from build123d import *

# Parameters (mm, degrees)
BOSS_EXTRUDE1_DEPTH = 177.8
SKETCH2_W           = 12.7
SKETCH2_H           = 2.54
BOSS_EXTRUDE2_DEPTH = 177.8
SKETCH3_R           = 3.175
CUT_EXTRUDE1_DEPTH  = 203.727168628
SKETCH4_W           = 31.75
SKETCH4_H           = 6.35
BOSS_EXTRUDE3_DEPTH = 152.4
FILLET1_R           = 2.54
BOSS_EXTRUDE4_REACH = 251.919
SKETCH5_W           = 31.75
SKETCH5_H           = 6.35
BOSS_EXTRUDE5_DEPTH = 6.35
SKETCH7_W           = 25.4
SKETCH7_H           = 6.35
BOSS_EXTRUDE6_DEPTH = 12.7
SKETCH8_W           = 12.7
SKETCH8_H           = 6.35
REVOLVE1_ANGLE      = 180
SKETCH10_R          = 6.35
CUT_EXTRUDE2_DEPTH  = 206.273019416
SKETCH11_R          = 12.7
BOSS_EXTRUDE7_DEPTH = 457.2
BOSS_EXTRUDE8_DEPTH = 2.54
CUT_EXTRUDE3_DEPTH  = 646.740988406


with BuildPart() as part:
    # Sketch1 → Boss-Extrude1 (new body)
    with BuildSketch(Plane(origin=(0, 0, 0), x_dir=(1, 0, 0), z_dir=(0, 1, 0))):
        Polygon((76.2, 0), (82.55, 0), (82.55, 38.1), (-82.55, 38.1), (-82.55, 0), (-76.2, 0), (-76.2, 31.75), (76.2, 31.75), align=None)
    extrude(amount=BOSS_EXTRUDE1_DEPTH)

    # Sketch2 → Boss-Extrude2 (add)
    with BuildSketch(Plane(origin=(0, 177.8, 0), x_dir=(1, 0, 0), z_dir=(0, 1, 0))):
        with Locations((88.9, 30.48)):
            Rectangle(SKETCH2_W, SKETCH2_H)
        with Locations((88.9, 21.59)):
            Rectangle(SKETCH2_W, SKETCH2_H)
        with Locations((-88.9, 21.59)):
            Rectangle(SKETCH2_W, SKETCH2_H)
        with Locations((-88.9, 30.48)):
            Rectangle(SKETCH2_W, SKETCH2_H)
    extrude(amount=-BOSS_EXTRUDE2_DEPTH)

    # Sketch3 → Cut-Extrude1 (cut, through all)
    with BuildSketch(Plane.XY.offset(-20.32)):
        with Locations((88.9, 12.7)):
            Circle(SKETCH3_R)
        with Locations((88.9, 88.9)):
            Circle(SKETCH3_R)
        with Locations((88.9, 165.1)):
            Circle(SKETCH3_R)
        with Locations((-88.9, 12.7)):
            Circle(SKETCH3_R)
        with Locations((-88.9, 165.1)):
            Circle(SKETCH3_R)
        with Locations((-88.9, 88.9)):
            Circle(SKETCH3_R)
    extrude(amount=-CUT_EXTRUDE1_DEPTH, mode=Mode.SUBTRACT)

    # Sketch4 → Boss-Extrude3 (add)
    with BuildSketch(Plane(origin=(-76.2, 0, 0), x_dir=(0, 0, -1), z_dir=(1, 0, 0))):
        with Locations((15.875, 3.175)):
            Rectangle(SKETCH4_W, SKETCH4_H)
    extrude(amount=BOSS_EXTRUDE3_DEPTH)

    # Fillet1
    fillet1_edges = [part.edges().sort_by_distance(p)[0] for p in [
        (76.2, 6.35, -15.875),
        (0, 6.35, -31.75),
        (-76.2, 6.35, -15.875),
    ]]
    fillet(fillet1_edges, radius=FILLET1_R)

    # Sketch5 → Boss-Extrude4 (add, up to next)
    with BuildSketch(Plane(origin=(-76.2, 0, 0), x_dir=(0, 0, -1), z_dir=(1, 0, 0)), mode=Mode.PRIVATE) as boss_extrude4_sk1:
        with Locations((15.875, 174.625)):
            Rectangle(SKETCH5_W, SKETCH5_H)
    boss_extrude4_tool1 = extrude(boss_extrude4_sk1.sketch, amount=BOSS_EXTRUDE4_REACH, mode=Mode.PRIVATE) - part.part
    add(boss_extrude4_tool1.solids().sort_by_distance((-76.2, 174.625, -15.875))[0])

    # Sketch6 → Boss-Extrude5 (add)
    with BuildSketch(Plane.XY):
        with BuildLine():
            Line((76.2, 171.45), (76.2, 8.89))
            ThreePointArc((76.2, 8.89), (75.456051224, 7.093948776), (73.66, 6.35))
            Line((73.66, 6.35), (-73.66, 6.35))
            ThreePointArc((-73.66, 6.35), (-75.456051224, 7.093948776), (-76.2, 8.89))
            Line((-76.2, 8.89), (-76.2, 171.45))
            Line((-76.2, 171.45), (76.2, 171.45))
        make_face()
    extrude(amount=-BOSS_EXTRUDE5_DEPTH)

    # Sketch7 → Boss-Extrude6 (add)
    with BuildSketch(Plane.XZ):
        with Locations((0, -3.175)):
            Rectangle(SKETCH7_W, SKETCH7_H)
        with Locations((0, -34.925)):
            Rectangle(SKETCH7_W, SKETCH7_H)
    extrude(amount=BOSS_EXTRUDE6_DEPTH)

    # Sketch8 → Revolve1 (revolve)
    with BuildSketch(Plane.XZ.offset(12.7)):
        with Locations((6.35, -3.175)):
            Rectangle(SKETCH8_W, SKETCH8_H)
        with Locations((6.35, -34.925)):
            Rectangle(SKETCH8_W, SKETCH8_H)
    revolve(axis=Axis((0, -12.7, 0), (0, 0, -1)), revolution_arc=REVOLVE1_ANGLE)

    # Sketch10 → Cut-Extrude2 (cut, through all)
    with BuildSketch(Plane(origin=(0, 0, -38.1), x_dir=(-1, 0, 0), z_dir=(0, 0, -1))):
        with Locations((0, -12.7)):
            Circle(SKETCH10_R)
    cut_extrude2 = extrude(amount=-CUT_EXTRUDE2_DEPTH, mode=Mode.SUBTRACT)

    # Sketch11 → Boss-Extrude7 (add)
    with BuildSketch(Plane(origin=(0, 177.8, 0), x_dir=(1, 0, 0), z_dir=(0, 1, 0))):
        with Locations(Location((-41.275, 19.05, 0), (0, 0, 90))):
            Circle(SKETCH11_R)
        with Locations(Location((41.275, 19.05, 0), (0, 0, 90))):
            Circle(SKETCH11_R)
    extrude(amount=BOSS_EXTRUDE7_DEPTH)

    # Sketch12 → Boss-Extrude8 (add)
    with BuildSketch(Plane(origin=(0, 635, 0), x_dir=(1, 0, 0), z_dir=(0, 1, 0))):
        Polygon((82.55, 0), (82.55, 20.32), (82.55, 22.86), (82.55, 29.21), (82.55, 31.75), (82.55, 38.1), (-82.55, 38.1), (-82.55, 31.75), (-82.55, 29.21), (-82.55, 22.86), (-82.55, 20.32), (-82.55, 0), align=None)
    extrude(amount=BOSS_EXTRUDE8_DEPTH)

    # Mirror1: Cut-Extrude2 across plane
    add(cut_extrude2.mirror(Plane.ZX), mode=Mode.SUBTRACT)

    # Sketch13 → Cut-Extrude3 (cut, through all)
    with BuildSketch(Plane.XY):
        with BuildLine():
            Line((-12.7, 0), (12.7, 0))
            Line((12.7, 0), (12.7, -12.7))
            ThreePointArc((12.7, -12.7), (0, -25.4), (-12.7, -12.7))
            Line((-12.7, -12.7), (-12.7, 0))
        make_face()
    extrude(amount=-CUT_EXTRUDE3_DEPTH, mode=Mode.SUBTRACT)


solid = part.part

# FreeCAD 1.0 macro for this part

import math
import FreeCAD as App
import Part
import Sketcher

V = App.Vector
Q = App.Units.Quantity


def edges_at(feature, points):
    """Names of the edges that pass closest to the given points."""
    edges = feature.Shape.Edges
    near = lambda p: min(range(len(edges)), key=lambda i: edges[i].distToShape(Part.Vertex(*p))[0])
    return sorted({f"Edge{near(p) + 1}" for p in points})

doc = App.newDocument("Part")
body = doc.addObject("PartDesign::Body", "Body")

# Sketch on XZ plane
sketch1 = body.newObject("Sketcher::SketchObject", "Sketch")
sketch1.AttachmentSupport = (doc.getObject("XZ_Plane"), [""])
sketch1.MapMode = "FlatFace"
sketch1.addGeometry([
    Part.LineSegment(V(76.2, 0, 0), V(82.55, 0, 0)),  # 0
    Part.LineSegment(V(82.55, 0, 0), V(82.55, -38.1, 0)),  # 1
    Part.LineSegment(V(82.55, -38.1, 0), V(-82.55, -38.1, 0)),  # 2
    Part.LineSegment(V(-82.55, -38.1, 0), V(-82.55, 0, 0)),  # 3
    Part.LineSegment(V(-82.55, 0, 0), V(-76.2, 0, 0)),  # 4
    Part.LineSegment(V(-76.2, 0, 0), V(-76.2, -31.75, 0)),  # 5
    Part.LineSegment(V(-76.2, -31.75, 0), V(76.2, -31.75, 0)),  # 6
    Part.LineSegment(V(76.2, -31.75, 0), V(76.2, 0, 0)),  # 7
], False)
sketch1.addConstraint([
    Sketcher.Constraint("Coincident", 0, 2, 1, 1),
    Sketcher.Constraint("Coincident", 1, 2, 2, 1),
    Sketcher.Constraint("Coincident", 2, 2, 3, 1),
    Sketcher.Constraint("Coincident", 3, 2, 4, 1),
    Sketcher.Constraint("Coincident", 4, 2, 5, 1),
    Sketcher.Constraint("Coincident", 5, 2, 6, 1),
    Sketcher.Constraint("Coincident", 6, 2, 7, 1),
    Sketcher.Constraint("Coincident", 7, 2, 0, 1),
    Sketcher.Constraint("Horizontal", 0),
    Sketcher.Constraint("Vertical", 1),
    Sketcher.Constraint("Horizontal", 2),
    Sketcher.Constraint("Vertical", 3),
    Sketcher.Constraint("Horizontal", 4),
    Sketcher.Constraint("Vertical", 5),
    Sketcher.Constraint("Horizontal", 6),
    Sketcher.Constraint("Vertical", 7),
    Sketcher.Constraint("Symmetric", 0, 2, 3, 2, -1, 1),
    Sketcher.Constraint("Symmetric", 4, 2, 7, 2, -2),
    Sketcher.Constraint("DistanceX", 6, 1, 6, 2, Q("6 in")),
    Sketcher.Constraint("DistanceX", 2, 2, 2, 1, Q("6.5 in")),
    Sketcher.Constraint("DistanceY", 1, 2, 1, 1, Q("1.5 in")),
    Sketcher.Constraint("DistanceY", 5, 2, 5, 1, Q("1.25 in")),
])
pad1 = body.newObject("PartDesign::Pad", "Pad")
pad1.Profile = sketch1
pad1.Length = Q("7 in")
pad1.Reversed = True

# Sketch on XZ plane
sketch2 = body.newObject("Sketcher::SketchObject", "Sketch001")
sketch2.AttachmentSupport = (doc.getObject("XZ_Plane"), [""])
sketch2.MapMode = "FlatFace"
sketch2.AttachmentOffset = App.Placement(V(0, 0, -7 * 25.4), App.Rotation())
sketch2.addGeometry([
    Part.LineSegment(V(82.55, -31.75, 0), V(82.55, -29.21, 0)),  # 0
    Part.LineSegment(V(82.55, -29.21, 0), V(95.25, -29.21, 0)),  # 1
    Part.LineSegment(V(95.25, -29.21, 0), V(95.25, -31.75, 0)),  # 2
    Part.LineSegment(V(95.25, -31.75, 0), V(82.55, -31.75, 0)),  # 3
    Part.LineSegment(V(82.55, -22.86, 0), V(82.55, -20.32, 0)),  # 4
    Part.LineSegment(V(82.55, -20.32, 0), V(95.25, -20.32, 0)),  # 5
    Part.LineSegment(V(95.25, -20.32, 0), V(95.25, -22.86, 0)),  # 6
    Part.LineSegment(V(95.25, -22.86, 0), V(82.55, -22.86, 0)),  # 7
    Part.LineSegment(V(-95.25, -22.86, 0), V(-95.25, -20.32, 0)),  # 8
    Part.LineSegment(V(-95.25, -20.32, 0), V(-82.55, -20.32, 0)),  # 9
    Part.LineSegment(V(-82.55, -20.32, 0), V(-82.55, -22.86, 0)),  # 10
    Part.LineSegment(V(-82.55, -22.86, 0), V(-95.25, -22.86, 0)),  # 11
    Part.LineSegment(V(-95.25, -31.75, 0), V(-95.25, -29.21, 0)),  # 12
    Part.LineSegment(V(-95.25, -29.21, 0), V(-82.55, -29.21, 0)),  # 13
    Part.LineSegment(V(-82.55, -29.21, 0), V(-82.55, -31.75, 0)),  # 14
    Part.LineSegment(V(-82.55, -31.75, 0), V(-95.25, -31.75, 0)),  # 15
], False)
sketch2.addConstraint([
    Sketcher.Constraint("Coincident", 0, 2, 1, 1),
    Sketcher.Constraint("Coincident", 1, 2, 2, 1),
    Sketcher.Constraint("Coincident", 2, 2, 3, 1),
    Sketcher.Constraint("Coincident", 3, 2, 0, 1),
    Sketcher.Constraint("Coincident", 4, 2, 5, 1),
    Sketcher.Constraint("Coincident", 5, 2, 6, 1),
    Sketcher.Constraint("Coincident", 6, 2, 7, 1),
    Sketcher.Constraint("Coincident", 7, 2, 4, 1),
    Sketcher.Constraint("Coincident", 8, 2, 9, 1),
    Sketcher.Constraint("Coincident", 9, 2, 10, 1),
    Sketcher.Constraint("Coincident", 10, 2, 11, 1),
    Sketcher.Constraint("Coincident", 11, 2, 8, 1),
    Sketcher.Constraint("Coincident", 12, 2, 13, 1),
    Sketcher.Constraint("Coincident", 13, 2, 14, 1),
    Sketcher.Constraint("Coincident", 14, 2, 15, 1),
    Sketcher.Constraint("Coincident", 15, 2, 12, 1),
    Sketcher.Constraint("Vertical", 0),
    Sketcher.Constraint("Horizontal", 1),
    Sketcher.Constraint("Vertical", 2),
    Sketcher.Constraint("Horizontal", 3),
    Sketcher.Constraint("Vertical", 4),
    Sketcher.Constraint("Horizontal", 5),
    Sketcher.Constraint("Vertical", 6),
    Sketcher.Constraint("Horizontal", 7),
    Sketcher.Constraint("Vertical", 8),
    Sketcher.Constraint("Horizontal", 9),
    Sketcher.Constraint("Vertical", 10),
    Sketcher.Constraint("Horizontal", 11),
    Sketcher.Constraint("Vertical", 12),
    Sketcher.Constraint("Horizontal", 13),
    Sketcher.Constraint("Vertical", 14),
    Sketcher.Constraint("Horizontal", 15),
    Sketcher.Constraint("Symmetric", 5, 2, 8, 2, -2),
    Sketcher.Constraint("Symmetric", 7, 2, 10, 2, -2),
    Sketcher.Constraint("Symmetric", 1, 2, 12, 2, -2),
    Sketcher.Constraint("Symmetric", 3, 2, 14, 2, -2),
    Sketcher.Constraint("Vertical", 3, 2, 4, 2),
    Sketcher.Constraint("Vertical", 2, 2, 5, 2),
    Sketcher.Constraint("Equal", 2, 4),
    Sketcher.Constraint("DistanceX", 1, 1, 1, 2, Q("0.5 in")),
    Sketcher.Constraint("DistanceY", 0, 1, 0, 2, Q("0.1 in")),
    Sketcher.Constraint("DistanceX", 8, 2, 4, 2, Q("7 in")),
    Sketcher.Constraint("DistanceY", 4, 2, -1, 1, Q("0.8 in")),
    Sketcher.Constraint("DistanceY", 0, 2, -1, 1, Q("1.15 in")),
])
pad2 = body.newObject("PartDesign::Pad", "Pad001")
pad2.Profile = sketch2
pad2.Length = Q("7 in")

# Sketch on XY plane
sketch3 = body.newObject("Sketcher::SketchObject", "Sketch002")
sketch3.AttachmentSupport = (doc.getObject("XY_Plane"), [""])
sketch3.MapMode = "FlatFace"
sketch3.AttachmentOffset = App.Placement(V(0, 0, -0.8 * 25.4), App.Rotation())
sketch3.addGeometry([
    Part.Circle(V(88.9, 12.7, 0), V(0, 0, 1), 3.175),  # 0
    Part.Circle(V(88.9, 88.9, 0), V(0, 0, 1), 3.175),  # 1
    Part.Circle(V(88.9, 165.1, 0), V(0, 0, 1), 3.175),  # 2
    Part.Circle(V(-88.9, 12.7, 0), V(0, 0, 1), 3.175),  # 3
    Part.Circle(V(-88.9, 165.1, 0), V(0, 0, 1), 3.175),  # 4
    Part.Circle(V(-88.9, 88.9, 0), V(0, 0, 1), 3.175),  # 5
], False)
sketch3.addConstraint([
    Sketcher.Constraint("Equal", 0, 1),
    Sketcher.Constraint("Equal", 1, 2),
    Sketcher.Constraint("Equal", 2, 3),
    Sketcher.Constraint("Equal", 3, 4),
    Sketcher.Constraint("Equal", 4, 5),
    Sketcher.Constraint("Symmetric", 0, 3, 3, 3, -2),
    Sketcher.Constraint("Symmetric", 2, 3, 4, 3, -2),
    Sketcher.Constraint("Symmetric", 1, 3, 5, 3, -2),
    Sketcher.Constraint("Vertical", 0, 3, 1, 3),
    Sketcher.Constraint("Vertical", 1, 3, 2, 3),
    Sketcher.Constraint("Diameter", 0, Q("0.25 in")),
    Sketcher.Constraint("DistanceY", 0, 3, 1, 3, Q("3 in")),
    Sketcher.Constraint("DistanceY", 1, 3, 2, 3, Q("3 in")),
    Sketcher.Constraint("DistanceX", 3, 3, 0, 3, Q("7 in")),
    Sketcher.Constraint("DistanceY", -1, 1, 0, 3, Q("0.5 in")),
])
pocket1 = body.newObject("PartDesign::Pocket", "Pocket")
pocket1.Profile = sketch3
pocket1.Type = "ThroughAll"

# Sketch on YZ plane
sketch4 = body.newObject("Sketcher::SketchObject", "Sketch003")
sketch4.AttachmentSupport = (doc.getObject("YZ_Plane"), [""])
sketch4.MapMode = "FlatFace"
sketch4.AttachmentOffset = App.Placement(V(0, 0, -3 * 25.4), App.Rotation())
sketch4.addGeometry([
    Part.LineSegment(V(6.35, 0, 0), V(0, 0, 0)),
    Part.LineSegment(V(0, 0, 0), V(0, -31.75, 0)),
    Part.LineSegment(V(0, -31.75, 0), V(6.35, -31.75, 0)),
    Part.LineSegment(V(6.35, -31.75, 0), V(6.35, 0, 0)),
], False)
sketch4.addConstraint([
    Sketcher.Constraint("Coincident", 0, 2, 1, 1),
    Sketcher.Constraint("Coincident", 1, 2, 2, 1),
    Sketcher.Constraint("Coincident", 2, 2, 3, 1),
    Sketcher.Constraint("Coincident", 3, 2, 0, 1),
    Sketcher.Constraint("Horizontal", 0),
    Sketcher.Constraint("Vertical", 1),
    Sketcher.Constraint("Horizontal", 2),
    Sketcher.Constraint("Vertical", 3),
    Sketcher.Constraint("Coincident", 0, 2, -1, 1),
    Sketcher.Constraint("DistanceX", 0, 2, 0, 1, Q("0.25 in")),
    Sketcher.Constraint("DistanceY", 1, 2, 1, 1, Q("1.25 in")),
])
pad3 = body.newObject("PartDesign::Pad", "Pad002")
pad3.Profile = sketch4
pad3.Length = Q("6 in")
doc.recompute()

fillet = body.newObject("PartDesign::Fillet", "Fillet")
fillet.Base = (pad3, edges_at(pad3, [(76.2, 6.35, -15.875), (0, 6.35, -31.75), (-76.2, 6.35, -15.875)]))
fillet.Radius = Q("0.1 in")

# Sketch on YZ plane
sketch5 = body.newObject("Sketcher::SketchObject", "Sketch004")
sketch5.AttachmentSupport = (doc.getObject("YZ_Plane"), [""])
sketch5.MapMode = "FlatFace"
sketch5.AttachmentOffset = App.Placement(V(0, 0, -3 * 25.4), App.Rotation())
sketch5.addGeometry([
    Part.LineSegment(V(177.8, 0, 0), V(171.45, 0, 0)),
    Part.LineSegment(V(171.45, 0, 0), V(171.45, -31.75, 0)),
    Part.LineSegment(V(171.45, -31.75, 0), V(177.8, -31.75, 0)),
    Part.LineSegment(V(177.8, -31.75, 0), V(177.8, 0, 0)),
], False)
sketch5.addConstraint([
    Sketcher.Constraint("Coincident", 0, 2, 1, 1),
    Sketcher.Constraint("Coincident", 1, 2, 2, 1),
    Sketcher.Constraint("Coincident", 2, 2, 3, 1),
    Sketcher.Constraint("Coincident", 3, 2, 0, 1),
    Sketcher.Constraint("Horizontal", 0),
    Sketcher.Constraint("Vertical", 1),
    Sketcher.Constraint("Horizontal", 2),
    Sketcher.Constraint("Vertical", 3),
    Sketcher.Constraint("PointOnObject", 0, 2, -1),
    Sketcher.Constraint("DistanceX", -1, 1, 2, 2, Q("7 in")),
    Sketcher.Constraint("DistanceX", 0, 2, 0, 1, Q("0.25 in")),
    Sketcher.Constraint("DistanceY", 1, 2, 1, 1, Q("1.25 in")),
])
pad4 = body.newObject("PartDesign::Pad", "Pad003")
pad4.Profile = sketch5
pad4.Type = "UpToFirst"

# Sketch on XY plane
sketch6 = body.newObject("Sketcher::SketchObject", "Sketch005")
sketch6.AttachmentSupport = (doc.getObject("XY_Plane"), [""])
sketch6.MapMode = "FlatFace"
sketch6.addGeometry([
    Part.LineSegment(V(76.2, 8.89, 0), V(76.2, 171.45, 0)),  # 0
    Part.LineSegment(V(76.2, 171.45, 0), V(-76.2, 171.45, 0)),  # 1
    Part.LineSegment(V(-76.2, 171.45, 0), V(-76.2, 8.89, 0)),  # 2
    Part.ArcOfCircle(Part.Circle(V(-73.66, 8.89, 0), V(0, 0, 1), 2.54), math.radians(-180), math.radians(-90)),  # 3
    Part.LineSegment(V(-73.66, 6.35, 0), V(73.66, 6.35, 0)),  # 4
    Part.ArcOfCircle(Part.Circle(V(73.66, 8.89, 0), V(0, 0, 1), 2.54), math.radians(-90), math.radians(0)),  # 5
], False)
sketch6.addConstraint([
    Sketcher.Constraint("Coincident", 0, 2, 1, 1),
    Sketcher.Constraint("Coincident", 1, 2, 2, 1),
    Sketcher.Constraint("Tangent", 2, 2, 3, 1),
    Sketcher.Constraint("Tangent", 3, 2, 4, 1),
    Sketcher.Constraint("Tangent", 4, 2, 5, 1),
    Sketcher.Constraint("Tangent", 5, 2, 0, 1),
    Sketcher.Constraint("Vertical", 0),
    Sketcher.Constraint("Horizontal", 1),
    Sketcher.Constraint("Vertical", 2),
    Sketcher.Constraint("Horizontal", 4),
    Sketcher.Constraint("Equal", 3, 5),
    Sketcher.Constraint("Radius", 3, Q("0.1 in")),
    Sketcher.Constraint("DistanceX", 1, 2, 1, 1, Q("6 in")),
    Sketcher.Constraint("DistanceY", 0, 1, 0, 2, Q("6.4 in")),
    Sketcher.Constraint("DistanceX", -1, 1, 0, 2, Q("3 in")),
    Sketcher.Constraint("DistanceY", -1, 1, 3, 3, Q("0.35 in")),
])
pad5 = body.newObject("PartDesign::Pad", "Pad004")
pad5.Profile = sketch6
pad5.Length = Q("0.25 in")
pad5.Reversed = True

# Sketch on XZ plane
sketch7 = body.newObject("Sketcher::SketchObject", "Sketch006")
sketch7.AttachmentSupport = (doc.getObject("XZ_Plane"), [""])
sketch7.MapMode = "FlatFace"
sketch7.addGeometry([
    Part.LineSegment(V(-12.7, 0, 0), V(-12.7, -6.35, 0)),  # 0
    Part.LineSegment(V(-12.7, -6.35, 0), V(12.7, -6.35, 0)),  # 1
    Part.LineSegment(V(12.7, -6.35, 0), V(12.7, 0, 0)),  # 2
    Part.LineSegment(V(12.7, 0, 0), V(-12.7, 0, 0)),  # 3
    Part.LineSegment(V(-12.7, -31.75, 0), V(-12.7, -38.1, 0)),  # 4
    Part.LineSegment(V(-12.7, -38.1, 0), V(12.7, -38.1, 0)),  # 5
    Part.LineSegment(V(12.7, -38.1, 0), V(12.7, -31.75, 0)),  # 6
    Part.LineSegment(V(12.7, -31.75, 0), V(-12.7, -31.75, 0)),  # 7
], False)
sketch7.addConstraint([
    Sketcher.Constraint("Coincident", 0, 2, 1, 1),
    Sketcher.Constraint("Coincident", 1, 2, 2, 1),
    Sketcher.Constraint("Coincident", 2, 2, 3, 1),
    Sketcher.Constraint("Coincident", 3, 2, 0, 1),
    Sketcher.Constraint("Coincident", 4, 2, 5, 1),
    Sketcher.Constraint("Coincident", 5, 2, 6, 1),
    Sketcher.Constraint("Coincident", 6, 2, 7, 1),
    Sketcher.Constraint("Coincident", 7, 2, 4, 1),
    Sketcher.Constraint("Vertical", 0),
    Sketcher.Constraint("Horizontal", 1),
    Sketcher.Constraint("Vertical", 2),
    Sketcher.Constraint("Horizontal", 3),
    Sketcher.Constraint("Vertical", 4),
    Sketcher.Constraint("Horizontal", 5),
    Sketcher.Constraint("Vertical", 6),
    Sketcher.Constraint("Horizontal", 7),
    Sketcher.Constraint("Symmetric", 2, 2, 3, 2, -1, 1),
    Sketcher.Constraint("Vertical", 3, 2, 4, 2),
    Sketcher.Constraint("Vertical", 2, 2, 5, 2),
    Sketcher.Constraint("Equal", 2, 4),
    Sketcher.Constraint("DistanceX", 1, 1, 1, 2, Q("1 in")),
    Sketcher.Constraint("DistanceY", 6, 2, 1, 2, Q("1 in")),
    Sketcher.Constraint("DistanceY", 0, 2, 0, 1, Q("0.25 in")),
])
pad6 = body.newObject("PartDesign::Pad", "Pad005")
pad6.Profile = sketch7
pad6.Length = Q("0.5 in")

# Sketch on XZ plane
sketch8 = body.newObject("Sketcher::SketchObject", "Sketch007")
sketch8.AttachmentSupport = (doc.getObject("XZ_Plane"), [""])
sketch8.MapMode = "FlatFace"
sketch8.AttachmentOffset = App.Placement(V(0, 0, 0.5 * 25.4), App.Rotation())
sketch8.addGeometry([
    Part.LineSegment(V(0, 0, 0), V(0, -6.35, 0)),  # 0
    Part.LineSegment(V(0, -6.35, 0), V(12.7, -6.35, 0)),  # 1
    Part.LineSegment(V(12.7, -6.35, 0), V(12.7, 0, 0)),  # 2
    Part.LineSegment(V(12.7, 0, 0), V(0, 0, 0)),  # 3
    Part.LineSegment(V(0, -31.75, 0), V(0, -38.1, 0)),  # 4
    Part.LineSegment(V(0, -38.1, 0), V(12.7, -38.1, 0)),  # 5
    Part.LineSegment(V(12.7, -38.1, 0), V(12.7, -31.75, 0)),  # 6
    Part.LineSegment(V(12.7, -31.75, 0), V(0, -31.75, 0)),  # 7
], False)
sketch8.addConstraint([
    Sketcher.Constraint("Coincident", 0, 2, 1, 1),
    Sketcher.Constraint("Coincident", 1, 2, 2, 1),
    Sketcher.Constraint("Coincident", 2, 2, 3, 1),
    Sketcher.Constraint("Coincident", 3, 2, 0, 1),
    Sketcher.Constraint("Coincident", 4, 2, 5, 1),
    Sketcher.Constraint("Coincident", 5, 2, 6, 1),
    Sketcher.Constraint("Coincident", 6, 2, 7, 1),
    Sketcher.Constraint("Coincident", 7, 2, 4, 1),
    Sketcher.Constraint("Vertical", 0),
    Sketcher.Constraint("Horizontal", 1),
    Sketcher.Constraint("Vertical", 2),
    Sketcher.Constraint("Horizontal", 3),
    Sketcher.Constraint("Vertical", 4),
    Sketcher.Constraint("Horizontal", 5),
    Sketcher.Constraint("Vertical", 6),
    Sketcher.Constraint("Horizontal", 7),
    Sketcher.Constraint("Coincident", 3, 2, -1, 1),
    Sketcher.Constraint("PointOnObject", 4, 2, -2),
    Sketcher.Constraint("Vertical", 2, 2, 5, 2),
    Sketcher.Constraint("Equal", 2, 4),
    Sketcher.Constraint("DistanceX", 1, 1, 1, 2, Q("0.5 in")),
    Sketcher.Constraint("DistanceY", 6, 2, 1, 2, Q("1 in")),
    Sketcher.Constraint("DistanceY", 0, 2, 0, 1, Q("0.25 in")),
])
revolution = body.newObject("PartDesign::Revolution", "Revolution")
revolution.Profile = sketch8
revolution.ReferenceAxis = (sketch8, ["V_Axis"])
revolution.Angle = 180
revolution.Reversed = True

# Sketch on XY plane
sketch9 = body.newObject("Sketcher::SketchObject", "Sketch008")
sketch9.AttachmentSupport = (doc.getObject("XY_Plane"), [""])
sketch9.MapMode = "FlatFace"
sketch9.AttachmentOffset = App.Placement(V(0, 0, -1.5 * 25.4), App.Rotation())
sketch9.addGeometry(Part.Circle(V(0, -12.7, 0), V(0, 0, 1), 6.35), False)
sketch9.addConstraint([
    Sketcher.Constraint("PointOnObject", 0, 3, -2),
    Sketcher.Constraint("Diameter", 0, Q("0.5 in")),
    Sketcher.Constraint("DistanceY", 0, 3, -1, 1, Q("0.5 in")),
])
pocket2 = body.newObject("PartDesign::Pocket", "Pocket001")
pocket2.Profile = sketch9
pocket2.Type = "ThroughAll"
pocket2.Reversed = True

# Sketch on XZ plane
sketch10 = body.newObject("Sketcher::SketchObject", "Sketch009")
sketch10.AttachmentSupport = (doc.getObject("XZ_Plane"), [""])
sketch10.MapMode = "FlatFace"
sketch10.AttachmentOffset = App.Placement(V(0, 0, -7 * 25.4), App.Rotation())
sketch10.addGeometry([
    Part.Circle(V(-41.275, -19.05, 0), V(0, 0, 1), 12.7),
    Part.Circle(V(41.275, -19.05, 0), V(0, 0, 1), 12.7),
], False)
sketch10.addConstraint([
    Sketcher.Constraint("Equal", 0, 1),
    Sketcher.Constraint("Symmetric", 0, 3, 1, 3, -2),
    Sketcher.Constraint("Diameter", 0, Q("1 in")),
    Sketcher.Constraint("DistanceY", 0, 3, -1, 1, Q("0.75 in")),
    Sketcher.Constraint("DistanceX", 0, 3, 1, 3, Q("3.25 in")),
])
pad7 = body.newObject("PartDesign::Pad", "Pad006")
pad7.Profile = sketch10
pad7.Length = Q("18 in")
pad7.Reversed = True

# Sketch on XZ plane
sketch11 = body.newObject("Sketcher::SketchObject", "Sketch010")
sketch11.AttachmentSupport = (doc.getObject("XZ_Plane"), [""])
sketch11.MapMode = "FlatFace"
sketch11.AttachmentOffset = App.Placement(V(0, 0, -25 * 25.4), App.Rotation())
sketch11.addGeometry([
    Part.LineSegment(V(82.55, 0, 0), V(82.55, -38.1, 0)),
    Part.LineSegment(V(82.55, -38.1, 0), V(-82.55, -38.1, 0)),
    Part.LineSegment(V(-82.55, -38.1, 0), V(-82.55, 0, 0)),
    Part.LineSegment(V(-82.55, 0, 0), V(82.55, 0, 0)),
], False)
sketch11.addConstraint([
    Sketcher.Constraint("Coincident", 0, 2, 1, 1),
    Sketcher.Constraint("Coincident", 1, 2, 2, 1),
    Sketcher.Constraint("Coincident", 2, 2, 3, 1),
    Sketcher.Constraint("Coincident", 3, 2, 0, 1),
    Sketcher.Constraint("Vertical", 0),
    Sketcher.Constraint("Horizontal", 1),
    Sketcher.Constraint("Vertical", 2),
    Sketcher.Constraint("Horizontal", 3),
    Sketcher.Constraint("Symmetric", 2, 2, 3, 2, -1, 1),
    Sketcher.Constraint("DistanceX", 1, 2, 1, 1, Q("6.5 in")),
    Sketcher.Constraint("DistanceY", 0, 2, 0, 1, Q("1.5 in")),
])
pad8 = body.newObject("PartDesign::Pad", "Pad007")
pad8.Profile = sketch11
pad8.Length = Q("0.1 in")
pad8.Reversed = True
doc.recompute()

mirrored = body.newObject("PartDesign::Mirrored", "Mirrored")
mirrored.Originals = [pocket2]
mirrored.MirrorPlane = (doc.getObject("XZ_Plane"), [""])
body.Tip = mirrored

# Sketch on XY plane
sketch12 = body.newObject("Sketcher::SketchObject", "Sketch011")
sketch12.AttachmentSupport = (doc.getObject("XY_Plane"), [""])
sketch12.MapMode = "FlatFace"
sketch12.addGeometry([
    Part.LineSegment(V(12.7, 0, 0), V(-12.7, 0, 0)),
    Part.LineSegment(V(-12.7, 0, 0), V(-12.7, -12.7, 0)),
    Part.ArcOfCircle(Part.Circle(V(0, -12.7, 0), V(0, 0, 1), 12.7), math.radians(180), math.radians(360)),
    Part.LineSegment(V(12.7, -12.7, 0), V(12.7, 0, 0)),
], False)
sketch12.addConstraint([
    Sketcher.Constraint("Coincident", 0, 2, 1, 1),
    Sketcher.Constraint("Tangent", 1, 2, 2, 1),
    Sketcher.Constraint("Tangent", 2, 2, 3, 1),
    Sketcher.Constraint("Coincident", 3, 2, 0, 1),
    Sketcher.Constraint("Horizontal", 0),
    Sketcher.Constraint("Vertical", 1),
    Sketcher.Constraint("Vertical", 3),
    Sketcher.Constraint("Symmetric", 0, 2, 3, 2, -1, 1),
    Sketcher.Constraint("Radius", 2, Q("0.5 in")),
    Sketcher.Constraint("DistanceY", 1, 2, 1, 1, Q("0.5 in")),
])
pocket3 = body.newObject("PartDesign::Pocket", "Pocket002")
pocket3.Profile = sketch12
pocket3.Type = "ThroughAll"

doc.recompute()
